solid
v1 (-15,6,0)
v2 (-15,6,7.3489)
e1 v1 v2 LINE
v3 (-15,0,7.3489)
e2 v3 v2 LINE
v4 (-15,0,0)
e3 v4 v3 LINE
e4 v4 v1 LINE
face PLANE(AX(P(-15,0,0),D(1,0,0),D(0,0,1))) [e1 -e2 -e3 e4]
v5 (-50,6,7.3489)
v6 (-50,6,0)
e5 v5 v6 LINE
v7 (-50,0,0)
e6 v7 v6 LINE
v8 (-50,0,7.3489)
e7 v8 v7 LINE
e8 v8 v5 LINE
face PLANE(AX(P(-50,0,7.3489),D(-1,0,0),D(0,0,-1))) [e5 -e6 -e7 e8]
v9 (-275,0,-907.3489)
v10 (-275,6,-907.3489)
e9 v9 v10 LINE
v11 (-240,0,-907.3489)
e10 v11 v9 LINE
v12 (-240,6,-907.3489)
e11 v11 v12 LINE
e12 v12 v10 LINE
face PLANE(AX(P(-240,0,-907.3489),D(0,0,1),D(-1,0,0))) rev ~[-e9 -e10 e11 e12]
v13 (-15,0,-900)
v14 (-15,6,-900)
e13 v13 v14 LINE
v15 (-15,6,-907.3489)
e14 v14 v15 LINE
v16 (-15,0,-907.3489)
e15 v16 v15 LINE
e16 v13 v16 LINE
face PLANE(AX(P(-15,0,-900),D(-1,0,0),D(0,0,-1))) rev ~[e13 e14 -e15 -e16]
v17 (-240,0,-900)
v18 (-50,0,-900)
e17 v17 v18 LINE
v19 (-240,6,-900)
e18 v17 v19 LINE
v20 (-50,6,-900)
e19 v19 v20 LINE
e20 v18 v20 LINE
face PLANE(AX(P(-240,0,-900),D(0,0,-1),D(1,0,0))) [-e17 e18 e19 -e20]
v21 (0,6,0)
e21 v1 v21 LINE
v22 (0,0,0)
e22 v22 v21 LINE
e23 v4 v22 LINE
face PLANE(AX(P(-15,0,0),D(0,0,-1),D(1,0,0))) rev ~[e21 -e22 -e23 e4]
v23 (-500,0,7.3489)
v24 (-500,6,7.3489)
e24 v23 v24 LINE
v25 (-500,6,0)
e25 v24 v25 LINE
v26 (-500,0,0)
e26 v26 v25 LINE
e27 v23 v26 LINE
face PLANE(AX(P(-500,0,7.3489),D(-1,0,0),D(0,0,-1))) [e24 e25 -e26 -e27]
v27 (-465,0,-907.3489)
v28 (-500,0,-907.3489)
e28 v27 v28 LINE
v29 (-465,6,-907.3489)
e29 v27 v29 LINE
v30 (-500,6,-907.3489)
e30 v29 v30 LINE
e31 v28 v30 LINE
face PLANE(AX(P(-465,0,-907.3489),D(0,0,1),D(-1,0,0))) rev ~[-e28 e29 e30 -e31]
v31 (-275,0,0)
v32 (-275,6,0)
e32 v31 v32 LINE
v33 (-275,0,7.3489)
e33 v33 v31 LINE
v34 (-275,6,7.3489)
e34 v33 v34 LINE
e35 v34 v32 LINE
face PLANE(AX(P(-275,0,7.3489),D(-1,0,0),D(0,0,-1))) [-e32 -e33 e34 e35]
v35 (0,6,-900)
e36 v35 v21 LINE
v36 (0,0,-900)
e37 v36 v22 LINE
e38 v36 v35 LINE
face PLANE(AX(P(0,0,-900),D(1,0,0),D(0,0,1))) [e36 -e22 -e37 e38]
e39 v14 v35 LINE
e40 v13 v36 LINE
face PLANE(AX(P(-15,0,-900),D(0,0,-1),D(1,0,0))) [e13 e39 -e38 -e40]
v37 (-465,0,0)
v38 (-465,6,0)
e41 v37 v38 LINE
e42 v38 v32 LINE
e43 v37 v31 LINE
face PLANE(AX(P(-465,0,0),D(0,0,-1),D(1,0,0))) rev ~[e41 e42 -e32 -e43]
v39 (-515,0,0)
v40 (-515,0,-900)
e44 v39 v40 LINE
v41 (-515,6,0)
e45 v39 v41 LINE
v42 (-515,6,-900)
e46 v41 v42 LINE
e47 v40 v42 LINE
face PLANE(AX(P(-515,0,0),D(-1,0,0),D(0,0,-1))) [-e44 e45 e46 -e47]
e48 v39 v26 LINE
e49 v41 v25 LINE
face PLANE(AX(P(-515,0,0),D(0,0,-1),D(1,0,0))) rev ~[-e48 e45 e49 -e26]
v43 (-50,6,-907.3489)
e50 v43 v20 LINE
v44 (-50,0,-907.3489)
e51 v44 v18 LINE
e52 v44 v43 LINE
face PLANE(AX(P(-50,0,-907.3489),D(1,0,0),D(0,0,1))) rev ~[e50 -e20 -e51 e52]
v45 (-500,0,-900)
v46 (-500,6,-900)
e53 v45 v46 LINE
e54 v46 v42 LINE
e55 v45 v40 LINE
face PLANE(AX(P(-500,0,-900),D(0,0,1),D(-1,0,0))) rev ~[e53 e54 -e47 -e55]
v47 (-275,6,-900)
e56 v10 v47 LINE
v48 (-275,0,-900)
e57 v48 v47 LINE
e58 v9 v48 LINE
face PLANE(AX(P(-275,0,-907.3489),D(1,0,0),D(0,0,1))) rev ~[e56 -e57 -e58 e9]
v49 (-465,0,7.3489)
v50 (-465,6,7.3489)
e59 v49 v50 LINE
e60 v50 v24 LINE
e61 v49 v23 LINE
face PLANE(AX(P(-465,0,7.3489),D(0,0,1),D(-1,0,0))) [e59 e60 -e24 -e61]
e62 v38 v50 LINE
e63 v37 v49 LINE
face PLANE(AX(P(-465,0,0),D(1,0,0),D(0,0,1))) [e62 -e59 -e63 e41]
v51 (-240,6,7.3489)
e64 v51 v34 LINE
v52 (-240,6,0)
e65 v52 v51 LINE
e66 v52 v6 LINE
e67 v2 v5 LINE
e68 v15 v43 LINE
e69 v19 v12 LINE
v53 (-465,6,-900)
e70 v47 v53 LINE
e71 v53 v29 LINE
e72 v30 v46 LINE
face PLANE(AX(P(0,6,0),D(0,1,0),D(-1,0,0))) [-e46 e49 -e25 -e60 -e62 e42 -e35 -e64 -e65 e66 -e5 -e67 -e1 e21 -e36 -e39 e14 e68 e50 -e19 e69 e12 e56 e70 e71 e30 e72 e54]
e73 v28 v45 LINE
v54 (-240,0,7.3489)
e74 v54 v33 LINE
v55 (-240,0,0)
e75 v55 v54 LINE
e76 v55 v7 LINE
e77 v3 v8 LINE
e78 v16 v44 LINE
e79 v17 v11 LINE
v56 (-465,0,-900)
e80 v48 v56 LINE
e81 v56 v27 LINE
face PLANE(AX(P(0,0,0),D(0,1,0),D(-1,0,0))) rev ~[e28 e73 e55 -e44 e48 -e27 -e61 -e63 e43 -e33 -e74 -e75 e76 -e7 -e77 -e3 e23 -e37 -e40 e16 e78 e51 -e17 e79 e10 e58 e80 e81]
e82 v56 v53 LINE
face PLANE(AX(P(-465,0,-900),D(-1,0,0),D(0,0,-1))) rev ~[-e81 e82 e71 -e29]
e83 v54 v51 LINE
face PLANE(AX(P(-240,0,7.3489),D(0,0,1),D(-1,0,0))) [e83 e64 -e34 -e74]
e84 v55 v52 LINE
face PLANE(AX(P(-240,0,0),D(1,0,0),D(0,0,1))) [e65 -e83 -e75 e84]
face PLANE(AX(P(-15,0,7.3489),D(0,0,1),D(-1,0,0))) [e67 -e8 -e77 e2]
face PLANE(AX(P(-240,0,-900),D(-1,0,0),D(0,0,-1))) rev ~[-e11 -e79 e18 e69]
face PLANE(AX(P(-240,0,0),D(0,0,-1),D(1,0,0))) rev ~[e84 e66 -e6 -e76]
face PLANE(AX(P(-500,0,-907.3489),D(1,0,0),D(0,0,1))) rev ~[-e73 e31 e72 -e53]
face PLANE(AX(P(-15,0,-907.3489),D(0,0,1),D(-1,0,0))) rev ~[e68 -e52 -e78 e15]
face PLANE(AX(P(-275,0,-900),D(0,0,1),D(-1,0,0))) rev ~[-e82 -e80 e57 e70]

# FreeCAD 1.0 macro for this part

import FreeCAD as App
import Part
import Sketcher

V = App.Vector


def add_polygon(sketch, points):
    """Adds a closed chain of lines whose ends are joined by coincident constraints."""
    first, n = sketch.GeometryCount, len(points)
    for a, b in zip(points, points[1:] + points[:1]):
        sketch.addGeometry(Part.LineSegment(App.Vector(*a, 0), App.Vector(*b, 0)), False)
    for i in range(n):
        sketch.addConstraint(Sketcher.Constraint("Coincident", first + i, 2, first + (i + 1) % n, 1))

doc = App.newDocument("Part")
body = doc.addObject("PartDesign::Body", "Body")

sketch1 = doc.addObject("Sketcher::SketchObject", "Sketch")
body.addObject(sketch1)
sketch1.AttachmentSupport = (doc.XZ_Plane, [""])
sketch1.MapMode = "FlatFace"
add_polygon(sketch1, [(-515, -900), (-515, 0), (-500, 0), (-500, 7), (-465, 7), (-465, 0), (-275, 0), (-275, 7), (-240, 7), (-240, 0), (-50, 0), (-50, 7), (-15, 7), (-15, 0), (0, 0), (0, -900), (-15, -900), (-15, -907), (-50, -907), (-50, -900), (-240, -900), (-240, -907), (-275, -907), (-275, -900), (-465, -900), (-465, -907), (-500, -907), (-500, -900)])
sketch1.addConstraint(Sketcher.Constraint("Vertical", 0))
sketch1.addConstraint(Sketcher.Constraint("Horizontal", 1))
sketch1.addConstraint(Sketcher.Constraint("Vertical", 2))
sketch1.addConstraint(Sketcher.Constraint("Horizontal", 3))
sketch1.addConstraint(Sketcher.Constraint("Vertical", 4))
sketch1.addConstraint(Sketcher.Constraint("Horizontal", 5))
sketch1.addConstraint(Sketcher.Constraint("Vertical", 6))
sketch1.addConstraint(Sketcher.Constraint("Horizontal", 7))
sketch1.addConstraint(Sketcher.Constraint("Vertical", 8))
sketch1.addConstraint(Sketcher.Constraint("Horizontal", 9))
sketch1.addConstraint(Sketcher.Constraint("Vertical", 10))
sketch1.addConstraint(Sketcher.Constraint("Horizontal", 11))
sketch1.addConstraint(Sketcher.Constraint("Vertical", 12))
sketch1.addConstraint(Sketcher.Constraint("Horizontal", 13))
sketch1.addConstraint(Sketcher.Constraint("Vertical", 14))
sketch1.addConstraint(Sketcher.Constraint("Horizontal", 15))
sketch1.addConstraint(Sketcher.Constraint("Vertical", 16))
sketch1.addConstraint(Sketcher.Constraint("Horizontal", 17))
sketch1.addConstraint(Sketcher.Constraint("Vertical", 18))
sketch1.addConstraint(Sketcher.Constraint("Horizontal", 19))
sketch1.addConstraint(Sketcher.Constraint("Vertical", 20))
sketch1.addConstraint(Sketcher.Constraint("Horizontal", 21))
sketch1.addConstraint(Sketcher.Constraint("Vertical", 22))
sketch1.addConstraint(Sketcher.Constraint("Horizontal", 23))
sketch1.addConstraint(Sketcher.Constraint("Vertical", 24))
sketch1.addConstraint(Sketcher.Constraint("Horizontal", 25))
sketch1.addConstraint(Sketcher.Constraint("Vertical", 26))
sketch1.addConstraint(Sketcher.Constraint("Horizontal", 27))
sketch1.addConstraint(Sketcher.Constraint("Coincident", 13, 2, -1, 1))
sketch1.addConstraint(Sketcher.Constraint("PointOnObject", 0, 2, -1))
sketch1.addConstraint(Sketcher.Constraint("PointOnObject", 4, 2, -1))
sketch1.addConstraint(Sketcher.Constraint("PointOnObject", 8, 2, -1))
sketch1.addConstraint(Sketcher.Constraint("Horizontal", 3, 2, 6, 2))
sketch1.addConstraint(Sketcher.Constraint("Horizontal", 7, 2, 10, 2))
sketch1.addConstraint(Sketcher.Constraint("Horizontal", 15, 2, 18, 2))
sketch1.addConstraint(Sketcher.Constraint("Horizontal", 17, 2, 20, 2))
sketch1.addConstraint(Sketcher.Constraint("Horizontal", 19, 2, 22, 2))
sketch1.addConstraint(Sketcher.Constraint("Horizontal", 21, 2, 24, 2))
sketch1.addConstraint(Sketcher.Constraint("Horizontal", 23, 2, 26, 2))
sketch1.addConstraint(Sketcher.Constraint("Vertical", 12, 2, 15, 2))
sketch1.addConstraint(Sketcher.Constraint("Vertical", 10, 2, 17, 2))
sketch1.addConstraint(Sketcher.Constraint("Vertical", 8, 2, 19, 2))
sketch1.addConstraint(Sketcher.Constraint("Vertical", 6, 2, 21, 2))
sketch1.addConstraint(Sketcher.Constraint("Vertical", 4, 2, 23, 2))
sketch1.addConstraint(Sketcher.Constraint("Vertical", 2, 2, 25, 2))
sketch1.addConstraint(Sketcher.Constraint("Equal", 3, 7))
sketch1.addConstraint(Sketcher.Constraint("Equal", 5, 9))
sketch1.addConstraint(Sketcher.Constraint("Equal", 7, 11))
sketch1.addConstraint(Sketcher.Constraint("Equal", 1, 13))
sketch1.addConstraint(Sketcher.Constraint("Equal", 12, 16))
sketch1.addConstraint(Sketcher.Constraint("DistanceX", 1, 1, 1, 2, 15.0))
sketch1.addConstraint(Sketcher.Constraint("DistanceX", 3, 1, 3, 2, 35.0))
sketch1.addConstraint(Sketcher.Constraint("DistanceX", 5, 1, 5, 2, 190.0))
sketch1.addConstraint(Sketcher.Constraint("DistanceY", 0, 1, 0, 2, 900.0))
sketch1.addConstraint(Sketcher.Constraint("DistanceY", 2, 1, 2, 2, 7.349))
pad1 = doc.addObject("PartDesign::Pad", "Pad")
body.addObject(pad1)
pad1.Profile = sketch1
pad1.Length = 6
pad1.Reversed = True

doc.recompute()
